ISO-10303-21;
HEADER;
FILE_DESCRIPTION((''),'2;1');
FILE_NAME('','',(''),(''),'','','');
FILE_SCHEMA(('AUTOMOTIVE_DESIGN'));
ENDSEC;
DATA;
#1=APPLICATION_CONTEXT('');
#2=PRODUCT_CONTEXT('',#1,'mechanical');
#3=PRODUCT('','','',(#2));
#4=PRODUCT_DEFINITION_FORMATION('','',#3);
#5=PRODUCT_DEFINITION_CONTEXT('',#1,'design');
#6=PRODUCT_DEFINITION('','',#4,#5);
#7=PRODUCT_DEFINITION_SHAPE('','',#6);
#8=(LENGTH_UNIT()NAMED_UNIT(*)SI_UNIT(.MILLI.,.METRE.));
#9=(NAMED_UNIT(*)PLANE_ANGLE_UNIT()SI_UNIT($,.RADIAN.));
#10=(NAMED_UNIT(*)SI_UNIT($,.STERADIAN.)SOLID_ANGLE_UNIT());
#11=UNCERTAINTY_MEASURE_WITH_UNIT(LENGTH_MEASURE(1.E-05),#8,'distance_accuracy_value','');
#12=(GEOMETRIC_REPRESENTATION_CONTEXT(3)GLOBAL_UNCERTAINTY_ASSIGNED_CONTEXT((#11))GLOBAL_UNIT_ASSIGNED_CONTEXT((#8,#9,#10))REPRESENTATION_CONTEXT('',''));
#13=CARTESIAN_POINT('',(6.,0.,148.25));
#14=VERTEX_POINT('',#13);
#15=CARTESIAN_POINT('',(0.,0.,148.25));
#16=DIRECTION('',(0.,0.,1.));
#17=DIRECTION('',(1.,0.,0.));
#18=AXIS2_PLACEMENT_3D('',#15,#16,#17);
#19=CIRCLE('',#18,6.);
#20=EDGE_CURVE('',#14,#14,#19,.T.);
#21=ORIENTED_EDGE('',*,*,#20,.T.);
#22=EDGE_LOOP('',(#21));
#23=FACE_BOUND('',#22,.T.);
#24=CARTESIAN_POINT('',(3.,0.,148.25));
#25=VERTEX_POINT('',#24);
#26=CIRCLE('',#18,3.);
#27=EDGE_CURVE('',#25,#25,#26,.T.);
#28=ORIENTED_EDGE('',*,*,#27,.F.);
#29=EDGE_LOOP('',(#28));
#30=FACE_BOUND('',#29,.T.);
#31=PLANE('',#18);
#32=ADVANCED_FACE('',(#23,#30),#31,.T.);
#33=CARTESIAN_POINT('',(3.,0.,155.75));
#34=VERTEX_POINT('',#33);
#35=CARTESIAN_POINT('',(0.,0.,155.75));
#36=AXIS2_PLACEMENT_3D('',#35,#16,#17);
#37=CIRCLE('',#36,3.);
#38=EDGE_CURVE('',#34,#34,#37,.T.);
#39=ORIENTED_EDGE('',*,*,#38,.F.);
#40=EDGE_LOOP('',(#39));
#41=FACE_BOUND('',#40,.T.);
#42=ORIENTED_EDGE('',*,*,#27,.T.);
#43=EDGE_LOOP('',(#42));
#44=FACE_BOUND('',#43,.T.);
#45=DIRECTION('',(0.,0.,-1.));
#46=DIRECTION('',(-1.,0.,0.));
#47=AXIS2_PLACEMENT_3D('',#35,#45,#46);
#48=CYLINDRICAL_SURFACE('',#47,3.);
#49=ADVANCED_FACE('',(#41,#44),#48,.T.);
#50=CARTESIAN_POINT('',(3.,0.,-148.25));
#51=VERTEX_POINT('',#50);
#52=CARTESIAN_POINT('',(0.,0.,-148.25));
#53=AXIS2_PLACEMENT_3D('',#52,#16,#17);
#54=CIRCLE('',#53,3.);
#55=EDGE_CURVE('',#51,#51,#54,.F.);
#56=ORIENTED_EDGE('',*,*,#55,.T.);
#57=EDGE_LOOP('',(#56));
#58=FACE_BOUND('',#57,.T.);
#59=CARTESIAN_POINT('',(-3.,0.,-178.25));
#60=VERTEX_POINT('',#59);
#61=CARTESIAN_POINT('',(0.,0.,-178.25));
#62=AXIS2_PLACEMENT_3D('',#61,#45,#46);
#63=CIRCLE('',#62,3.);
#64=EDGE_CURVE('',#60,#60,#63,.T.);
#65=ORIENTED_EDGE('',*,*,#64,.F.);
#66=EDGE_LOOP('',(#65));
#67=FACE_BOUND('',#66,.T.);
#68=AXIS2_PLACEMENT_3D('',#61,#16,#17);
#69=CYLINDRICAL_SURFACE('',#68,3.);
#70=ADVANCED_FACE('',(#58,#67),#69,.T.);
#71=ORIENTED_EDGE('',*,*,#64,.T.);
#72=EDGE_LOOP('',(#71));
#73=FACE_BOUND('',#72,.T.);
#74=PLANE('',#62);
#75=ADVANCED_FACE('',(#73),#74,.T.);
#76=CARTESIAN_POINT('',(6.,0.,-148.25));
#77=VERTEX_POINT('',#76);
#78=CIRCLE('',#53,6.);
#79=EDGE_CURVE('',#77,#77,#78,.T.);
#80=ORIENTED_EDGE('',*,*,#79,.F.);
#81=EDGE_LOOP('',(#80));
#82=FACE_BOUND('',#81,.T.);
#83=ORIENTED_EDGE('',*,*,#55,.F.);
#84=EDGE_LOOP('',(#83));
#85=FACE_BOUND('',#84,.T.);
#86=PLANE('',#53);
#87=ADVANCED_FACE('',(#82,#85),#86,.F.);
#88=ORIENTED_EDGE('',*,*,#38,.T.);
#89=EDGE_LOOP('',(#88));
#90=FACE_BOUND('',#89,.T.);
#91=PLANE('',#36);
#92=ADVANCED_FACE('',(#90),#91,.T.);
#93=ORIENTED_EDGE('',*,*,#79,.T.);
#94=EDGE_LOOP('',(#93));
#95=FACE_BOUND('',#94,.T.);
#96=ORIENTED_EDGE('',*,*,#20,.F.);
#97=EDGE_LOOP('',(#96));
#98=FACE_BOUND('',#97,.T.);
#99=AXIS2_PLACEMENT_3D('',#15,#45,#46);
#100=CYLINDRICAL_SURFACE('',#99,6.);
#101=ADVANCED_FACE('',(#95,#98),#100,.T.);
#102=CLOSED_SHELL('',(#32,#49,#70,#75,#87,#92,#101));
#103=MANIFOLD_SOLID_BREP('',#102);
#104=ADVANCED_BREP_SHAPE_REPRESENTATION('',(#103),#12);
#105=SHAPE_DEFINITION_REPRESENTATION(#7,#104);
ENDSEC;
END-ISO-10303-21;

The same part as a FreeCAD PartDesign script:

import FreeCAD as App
import Part
import Sketcher
Q = App.Units.Quantity

doc = App.newDocument("Part")
body = doc.addObject("PartDesign::Body", "Body")

# Sketch on XY plane
sketch1 = body.newObject("Sketcher::SketchObject", "Sketch")
sketch1.AttachmentSupport = (doc.getObject("XY_Plane"), [""])
sketch1.MapMode = "FlatFace"
sketch1.addGeometry(Part.Circle(App.Vector(0, 0, 0), App.Vector(0, 0, 1), 6), False)
sketch1.addConstraint([
    Sketcher.Constraint("Coincident", 0, 3, -1, 1),
    Sketcher.Constraint("Diameter", 0, Q("12 mm")),
])
pad1 = body.newObject("PartDesign::Pad", "Pad")
pad1.Profile = sketch1
pad1.Length = 296.5
pad1.Midplane = True

# Sketch on XY plane
sketch2 = body.newObject("Sketcher::SketchObject", "Sketch001")
sketch2.AttachmentSupport = (doc.getObject("XY_Plane"), [""])
sketch2.MapMode = "FlatFace"
sketch2.AttachmentOffset = App.Placement(App.Vector(0, 0, 148.25), App.Rotation())
sketch2.addGeometry(Part.Circle(App.Vector(0, 0, 0), App.Vector(0, 0, 1), 3), False)
sketch2.addConstraint([
    Sketcher.Constraint("Coincident", 0, 3, -1, 1),
    Sketcher.Constraint("Diameter", 0, Q("6 mm")),
])
pad2 = body.newObject("PartDesign::Pad", "Pad001")
pad2.Profile = sketch2
pad2.Length = 7.5

# Sketch on XY plane
sketch3 = body.newObject("Sketcher::SketchObject", "Sketch002")
sketch3.AttachmentSupport = (doc.getObject("XY_Plane"), [""])
sketch3.MapMode = "FlatFace"
sketch3.AttachmentOffset = App.Placement(App.Vector(0, 0, -178.25), App.Rotation())
sketch3.addGeometry(Part.Circle(App.Vector(0, 0, 0), App.Vector(0, 0, 1), 3), False)
sketch3.addConstraint([
    Sketcher.Constraint("Coincident", 0, 3, -1, 1),
    Sketcher.Constraint("Diameter", 0, Q("6 mm")),
])
pad3 = body.newObject("PartDesign::Pad", "Pad002")
pad3.Profile = sketch3
pad3.Length = 30

doc.recompute()
